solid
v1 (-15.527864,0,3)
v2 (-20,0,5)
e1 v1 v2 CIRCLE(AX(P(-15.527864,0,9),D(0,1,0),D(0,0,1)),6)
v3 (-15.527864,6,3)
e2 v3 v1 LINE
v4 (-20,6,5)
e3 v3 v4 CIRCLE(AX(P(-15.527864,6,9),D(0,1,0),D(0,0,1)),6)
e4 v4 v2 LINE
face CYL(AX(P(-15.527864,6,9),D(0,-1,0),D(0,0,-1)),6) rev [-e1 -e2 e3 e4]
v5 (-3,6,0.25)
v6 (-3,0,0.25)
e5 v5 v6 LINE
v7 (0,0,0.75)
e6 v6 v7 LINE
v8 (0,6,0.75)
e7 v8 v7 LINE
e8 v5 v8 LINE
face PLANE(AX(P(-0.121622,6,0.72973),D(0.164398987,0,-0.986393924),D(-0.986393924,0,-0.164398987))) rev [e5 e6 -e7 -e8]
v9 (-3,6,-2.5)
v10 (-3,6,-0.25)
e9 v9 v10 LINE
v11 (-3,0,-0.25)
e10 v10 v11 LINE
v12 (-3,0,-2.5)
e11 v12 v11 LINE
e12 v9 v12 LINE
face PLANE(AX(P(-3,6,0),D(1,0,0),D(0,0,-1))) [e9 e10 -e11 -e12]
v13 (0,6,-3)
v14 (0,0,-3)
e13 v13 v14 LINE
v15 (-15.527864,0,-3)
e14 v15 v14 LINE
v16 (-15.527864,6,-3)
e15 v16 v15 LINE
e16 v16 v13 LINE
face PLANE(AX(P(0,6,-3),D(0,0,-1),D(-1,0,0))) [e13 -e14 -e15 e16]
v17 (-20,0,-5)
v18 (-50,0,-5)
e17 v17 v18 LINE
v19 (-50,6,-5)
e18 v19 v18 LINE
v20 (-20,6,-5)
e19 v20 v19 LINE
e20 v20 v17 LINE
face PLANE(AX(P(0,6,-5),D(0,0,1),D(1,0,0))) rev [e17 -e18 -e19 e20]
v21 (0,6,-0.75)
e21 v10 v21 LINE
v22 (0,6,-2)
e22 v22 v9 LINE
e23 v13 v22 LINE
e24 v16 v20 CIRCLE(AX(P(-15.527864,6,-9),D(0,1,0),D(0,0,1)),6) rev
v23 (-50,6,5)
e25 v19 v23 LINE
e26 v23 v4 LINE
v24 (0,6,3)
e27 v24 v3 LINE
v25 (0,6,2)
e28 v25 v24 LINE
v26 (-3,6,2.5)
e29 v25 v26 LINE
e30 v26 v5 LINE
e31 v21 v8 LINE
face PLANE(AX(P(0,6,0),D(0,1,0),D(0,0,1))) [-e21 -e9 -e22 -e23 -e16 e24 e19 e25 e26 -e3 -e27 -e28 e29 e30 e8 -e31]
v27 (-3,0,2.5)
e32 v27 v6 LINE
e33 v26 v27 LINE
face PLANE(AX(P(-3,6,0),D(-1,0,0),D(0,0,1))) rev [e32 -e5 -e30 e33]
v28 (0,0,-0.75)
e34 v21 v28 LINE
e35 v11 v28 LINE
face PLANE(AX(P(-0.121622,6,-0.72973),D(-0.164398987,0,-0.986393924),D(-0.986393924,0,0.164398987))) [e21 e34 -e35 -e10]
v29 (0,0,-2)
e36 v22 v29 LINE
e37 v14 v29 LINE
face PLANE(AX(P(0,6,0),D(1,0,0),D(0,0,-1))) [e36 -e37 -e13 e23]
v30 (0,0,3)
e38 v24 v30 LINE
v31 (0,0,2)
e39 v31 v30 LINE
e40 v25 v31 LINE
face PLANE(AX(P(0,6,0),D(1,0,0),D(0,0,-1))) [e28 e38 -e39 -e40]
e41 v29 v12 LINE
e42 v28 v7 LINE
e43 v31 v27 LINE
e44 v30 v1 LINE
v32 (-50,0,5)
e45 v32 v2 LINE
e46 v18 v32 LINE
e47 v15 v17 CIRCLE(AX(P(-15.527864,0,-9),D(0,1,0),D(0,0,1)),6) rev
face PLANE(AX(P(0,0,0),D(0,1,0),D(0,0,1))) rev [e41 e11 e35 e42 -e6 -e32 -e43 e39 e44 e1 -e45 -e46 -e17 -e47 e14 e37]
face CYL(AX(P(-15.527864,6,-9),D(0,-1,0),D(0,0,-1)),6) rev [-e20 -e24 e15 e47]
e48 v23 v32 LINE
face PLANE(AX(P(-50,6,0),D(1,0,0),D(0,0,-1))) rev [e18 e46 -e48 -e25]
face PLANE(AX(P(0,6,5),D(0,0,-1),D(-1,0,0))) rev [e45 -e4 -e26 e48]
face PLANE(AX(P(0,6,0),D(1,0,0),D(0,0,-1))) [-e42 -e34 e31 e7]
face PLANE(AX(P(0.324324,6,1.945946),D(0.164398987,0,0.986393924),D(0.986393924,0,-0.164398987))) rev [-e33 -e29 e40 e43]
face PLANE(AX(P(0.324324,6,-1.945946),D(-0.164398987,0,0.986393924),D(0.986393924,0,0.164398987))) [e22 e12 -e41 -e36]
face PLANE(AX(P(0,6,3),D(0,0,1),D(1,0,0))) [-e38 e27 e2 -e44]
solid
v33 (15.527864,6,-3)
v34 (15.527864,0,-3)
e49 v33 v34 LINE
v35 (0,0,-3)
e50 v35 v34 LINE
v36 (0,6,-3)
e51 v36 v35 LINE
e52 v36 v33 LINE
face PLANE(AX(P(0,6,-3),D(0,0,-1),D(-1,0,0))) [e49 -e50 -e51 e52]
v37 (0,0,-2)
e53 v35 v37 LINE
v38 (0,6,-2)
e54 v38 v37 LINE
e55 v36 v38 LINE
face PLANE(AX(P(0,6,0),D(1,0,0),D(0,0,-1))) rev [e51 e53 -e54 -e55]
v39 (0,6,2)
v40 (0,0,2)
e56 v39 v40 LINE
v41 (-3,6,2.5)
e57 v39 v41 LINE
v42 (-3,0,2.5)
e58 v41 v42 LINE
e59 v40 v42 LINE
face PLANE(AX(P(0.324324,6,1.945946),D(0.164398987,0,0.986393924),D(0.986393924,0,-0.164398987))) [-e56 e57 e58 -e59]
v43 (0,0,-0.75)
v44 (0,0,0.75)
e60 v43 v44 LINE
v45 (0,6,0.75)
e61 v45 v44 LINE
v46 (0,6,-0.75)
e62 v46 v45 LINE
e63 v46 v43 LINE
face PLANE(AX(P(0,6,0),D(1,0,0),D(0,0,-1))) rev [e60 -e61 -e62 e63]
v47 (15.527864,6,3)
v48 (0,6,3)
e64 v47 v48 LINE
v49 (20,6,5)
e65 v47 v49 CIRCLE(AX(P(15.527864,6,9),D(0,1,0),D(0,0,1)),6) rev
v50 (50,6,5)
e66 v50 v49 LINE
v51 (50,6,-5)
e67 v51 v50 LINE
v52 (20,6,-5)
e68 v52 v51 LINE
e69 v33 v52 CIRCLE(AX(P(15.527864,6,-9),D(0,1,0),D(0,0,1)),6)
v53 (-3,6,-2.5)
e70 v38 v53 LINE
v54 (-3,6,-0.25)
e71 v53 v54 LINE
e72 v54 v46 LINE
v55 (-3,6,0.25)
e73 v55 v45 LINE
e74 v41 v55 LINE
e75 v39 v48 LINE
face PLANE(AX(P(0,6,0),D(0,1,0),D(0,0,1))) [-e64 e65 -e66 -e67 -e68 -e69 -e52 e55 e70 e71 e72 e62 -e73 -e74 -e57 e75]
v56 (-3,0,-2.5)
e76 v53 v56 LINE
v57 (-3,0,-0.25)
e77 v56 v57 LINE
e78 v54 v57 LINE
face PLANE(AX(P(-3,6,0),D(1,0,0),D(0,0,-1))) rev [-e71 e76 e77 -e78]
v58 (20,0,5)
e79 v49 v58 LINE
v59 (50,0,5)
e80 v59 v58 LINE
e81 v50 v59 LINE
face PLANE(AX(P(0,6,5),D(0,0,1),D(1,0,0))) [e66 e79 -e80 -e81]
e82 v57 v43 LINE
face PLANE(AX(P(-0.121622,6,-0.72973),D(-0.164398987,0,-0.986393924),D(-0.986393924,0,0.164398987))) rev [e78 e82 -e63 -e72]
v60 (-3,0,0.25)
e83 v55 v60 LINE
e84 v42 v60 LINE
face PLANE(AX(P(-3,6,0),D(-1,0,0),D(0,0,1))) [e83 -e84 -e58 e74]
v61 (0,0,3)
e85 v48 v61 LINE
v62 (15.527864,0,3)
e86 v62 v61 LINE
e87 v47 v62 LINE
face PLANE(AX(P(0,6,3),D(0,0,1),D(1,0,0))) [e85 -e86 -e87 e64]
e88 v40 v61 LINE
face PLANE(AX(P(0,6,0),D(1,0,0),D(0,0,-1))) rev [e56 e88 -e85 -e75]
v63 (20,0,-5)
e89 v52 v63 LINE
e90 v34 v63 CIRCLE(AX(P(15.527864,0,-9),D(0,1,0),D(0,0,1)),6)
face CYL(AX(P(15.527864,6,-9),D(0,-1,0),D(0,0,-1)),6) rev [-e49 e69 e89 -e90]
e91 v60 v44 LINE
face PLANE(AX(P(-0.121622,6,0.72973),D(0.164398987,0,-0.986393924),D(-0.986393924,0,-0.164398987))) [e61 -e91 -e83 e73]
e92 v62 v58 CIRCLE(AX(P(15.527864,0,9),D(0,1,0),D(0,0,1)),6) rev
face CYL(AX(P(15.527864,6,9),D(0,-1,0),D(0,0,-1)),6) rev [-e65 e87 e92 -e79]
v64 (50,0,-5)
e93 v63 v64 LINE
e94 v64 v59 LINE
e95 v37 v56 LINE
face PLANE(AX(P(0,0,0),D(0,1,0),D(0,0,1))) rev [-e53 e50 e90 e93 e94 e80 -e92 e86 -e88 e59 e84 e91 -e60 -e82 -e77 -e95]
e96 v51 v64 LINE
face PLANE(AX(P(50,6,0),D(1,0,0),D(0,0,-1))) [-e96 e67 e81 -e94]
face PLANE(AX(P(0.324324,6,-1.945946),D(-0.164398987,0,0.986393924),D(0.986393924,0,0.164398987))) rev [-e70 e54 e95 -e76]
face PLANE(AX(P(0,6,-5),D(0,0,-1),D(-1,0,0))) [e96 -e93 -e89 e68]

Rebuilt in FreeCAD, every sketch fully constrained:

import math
import FreeCAD as App
import Part
import Sketcher

V = App.Vector
Q = App.Units.Quantity

doc = App.newDocument("Part")
body = doc.addObject("PartDesign::Body", "Body")

sketch1 = body.newObject("Sketcher::SketchObject", "Sketch")
sketch1.AttachmentSupport = (doc.getObject("XZ_Plane"), [""])
sketch1.MapMode = "FlatFace"
sketch1.addGeometry([
    Part.LineSegment(V(-15.5, 3, 0), V(0, 3, 0)),
    Part.LineSegment(V(0, 3, 0), V(0, 2, 0)),
    Part.LineSegment(V(0, 2, 0), V(-3, 2.5, 0)),
    Part.LineSegment(V(-3, 2.5, 0), V(-3, 0.2, 0)),
    Part.LineSegment(V(-3, 0.2, 0), V(0, 0.8, 0)),
    Part.LineSegment(V(0, 0.8, 0), V(0, -0.8, 0)),
    Part.LineSegment(V(0, -0.8, 0), V(-3, -0.2, 0)),
    Part.LineSegment(V(-3, -0.2, 0), V(-3, -2.5, 0)),
    Part.LineSegment(V(-3, -2.5, 0), V(0, -2, 0)),
    Part.LineSegment(V(0, -2, 0), V(0, -3, 0)),
    Part.LineSegment(V(0, -3, 0), V(-15.5, -3, 0)),
    Part.ArcOfCircle(Part.Circle(V(-15.5, -9, 0), V(0, 0, 1), 6), math.radians(90), math.radians(138)),
    Part.LineSegment(V(-20, -5, 0), V(-50, -5, 0)),
    Part.LineSegment(V(-50, -5, 0), V(-50, 5, 0)),
    Part.LineSegment(V(-50, 5, 0), V(-20, 5, 0)),
    Part.ArcOfCircle(Part.Circle(V(-15.5, 9, 0), V(0, 0, 1), 6), math.radians(-138), math.radians(-90)),
], False)
sketch1.addConstraint([
    Sketcher.Constraint("Coincident", 0, 2, 1, 1),
    Sketcher.Constraint("Coincident", 1, 2, 2, 1),
    Sketcher.Constraint("Coincident", 2, 2, 3, 1),
    Sketcher.Constraint("Coincident", 3, 2, 4, 1),
    Sketcher.Constraint("Coincident", 4, 2, 5, 1),
    Sketcher.Constraint("Coincident", 5, 2, 6, 1),
    Sketcher.Constraint("Coincident", 6, 2, 7, 1),
    Sketcher.Constraint("Coincident", 7, 2, 8, 1),
    Sketcher.Constraint("Coincident", 8, 2, 9, 1),
    Sketcher.Constraint("Coincident", 9, 2, 10, 1),
    Sketcher.Constraint("Tangent", 10, 2, 11, 1),
    Sketcher.Constraint("Coincident", 11, 2, 12, 1),
    Sketcher.Constraint("Coincident", 12, 2, 13, 1),
    Sketcher.Constraint("Coincident", 13, 2, 14, 1),
    Sketcher.Constraint("Coincident", 14, 2, 15, 1),
    Sketcher.Constraint("Tangent", 15, 2, 0, 1),
    Sketcher.Constraint("Horizontal", 0),
    Sketcher.Constraint("Vertical", 1),
    Sketcher.Constraint("Vertical", 3),
    Sketcher.Constraint("Vertical", 5),
    Sketcher.Constraint("Vertical", 7),
    Sketcher.Constraint("Vertical", 9),
    Sketcher.Constraint("Horizontal", 10),
    Sketcher.Constraint("Horizontal", 12),
    Sketcher.Constraint("Vertical", 13),
    Sketcher.Constraint("Horizontal", 14),
    Sketcher.Constraint("Equal", 11, 15),
    Sketcher.Constraint("Symmetric", 4, 2, 5, 2, -1, 1),
    Sketcher.Constraint("Symmetric", 1, 2, 8, 2, -1, 1),
    Sketcher.Constraint("Symmetric", 11, 3, 15, 3, -1),
    Sketcher.Constraint("Symmetric", 3, 2, 6, 2, -1),
    Sketcher.Constraint("PointOnObject", 0, 2, -2),
    Sketcher.Constraint("Parallel", 2, 6),
    Sketcher.Constraint("Parallel", 4, 8),
    Sketcher.Constraint("Vertical", 11, 2, 14, 2),
    Sketcher.Constraint("Radius", 11, Q("6 mm")),
    Sketcher.Constraint("DistanceX", 12, 2, 12, 1, Q("30 mm")),
    Sketcher.Constraint("DistanceY", 1, 2, 1, 1, Q("1 mm")),
    Sketcher.Constraint("DistanceY", 13, 1, 13, 2, Q("10 mm")),
    Sketcher.Constraint("DistanceY", 5, 2, 5, 1, Q("1.5 mm")),
    Sketcher.Constraint("DistanceY", 11, 3, -1, 1, Q("9 mm")),
    Sketcher.Constraint("DistanceX", 2, 2, -1, 1, Q("3 mm")),
    Sketcher.Constraint("DistanceX", 11, 2, -1, 1, Q("20 mm")),
    Sketcher.Constraint("DistanceY", 5, 2, 3, 2, Q("1 mm")),
])
pad1 = body.newObject("PartDesign::Pad", "Pad")
pad1.Profile = sketch1
pad1.Length = 6
pad1.Reversed = True
body2 = doc.addObject("PartDesign::Body", "Body001")

sketch2 = body2.newObject("Sketcher::SketchObject", "Sketch001")
sketch2.AttachmentSupport = (doc.getObject("XZ_Plane001"), [""])
sketch2.MapMode = "FlatFace"
sketch2.addGeometry([
    Part.LineSegment(V(0, 3, 0), V(15.5, 3, 0)),
    Part.ArcOfCircle(Part.Circle(V(15.5, 9, 0), V(0, 0, 1), 6), math.radians(-90), math.radians(-42)),
    Part.LineSegment(V(20, 5, 0), V(50, 5, 0)),
    Part.LineSegment(V(50, 5, 0), V(50, -5, 0)),
    Part.LineSegment(V(50, -5, 0), V(20, -5, 0)),
    Part.ArcOfCircle(Part.Circle(V(15.5, -9, 0), V(0, 0, 1), 6), math.radians(42), math.radians(90)),
    Part.LineSegment(V(15.5, -3, 0), V(0, -3, 0)),
    Part.LineSegment(V(0, -3, 0), V(0, -2, 0)),
    Part.LineSegment(V(0, -2, 0), V(-3, -2.5, 0)),
    Part.LineSegment(V(-3, -2.5, 0), V(-3, -0.2, 0)),
    Part.LineSegment(V(-3, -0.2, 0), V(0, -0.8, 0)),
    Part.LineSegment(V(0, -0.8, 0), V(0, 0.8, 0)),
    Part.LineSegment(V(0, 0.8, 0), V(-3, 0.2, 0)),
    Part.LineSegment(V(-3, 0.2, 0), V(-3, 2.5, 0)),
    Part.LineSegment(V(-3, 2.5, 0), V(0, 2, 0)),
    Part.LineSegment(V(0, 2, 0), V(0, 3, 0)),
], False)
sketch2.addConstraint([
    Sketcher.Constraint("Tangent", 0, 2, 1, 1),
    Sketcher.Constraint("Coincident", 1, 2, 2, 1),
    Sketcher.Constraint("Coincident", 2, 2, 3, 1),
    Sketcher.Constraint("Coincident", 3, 2, 4, 1),
    Sketcher.Constraint("Coincident", 4, 2, 5, 1),
    Sketcher.Constraint("Tangent", 5, 2, 6, 1),
    Sketcher.Constraint("Coincident", 6, 2, 7, 1),
    Sketcher.Constraint("Coincident", 7, 2, 8, 1),
    Sketcher.Constraint("Coincident", 8, 2, 9, 1),
    Sketcher.Constraint("Coincident", 9, 2, 10, 1),
    Sketcher.Constraint("Coincident", 10, 2, 11, 1),
    Sketcher.Constraint("Coincident", 11, 2, 12, 1),
    Sketcher.Constraint("Coincident", 12, 2, 13, 1),
    Sketcher.Constraint("Coincident", 13, 2, 14, 1),
    Sketcher.Constraint("Coincident", 14, 2, 15, 1),
    Sketcher.Constraint("Coincident", 15, 2, 0, 1),
    Sketcher.Constraint("Horizontal", 0),
    Sketcher.Constraint("Horizontal", 2),
    Sketcher.Constraint("Vertical", 3),
    Sketcher.Constraint("Horizontal", 4),
    Sketcher.Constraint("Horizontal", 6),
    Sketcher.Constraint("Vertical", 7),
    Sketcher.Constraint("Vertical", 9),
    Sketcher.Constraint("Vertical", 11),
    Sketcher.Constraint("Vertical", 13),
    Sketcher.Constraint("Vertical", 15),
    Sketcher.Constraint("Equal", 1, 5),
    Sketcher.Constraint("Symmetric", 10, 2, 11, 2, -1, 1),
    Sketcher.Constraint("Symmetric", 7, 2, 14, 2, -1, 1),
    Sketcher.Constraint("Symmetric", 1, 3, 5, 3, -1),
    Sketcher.Constraint("Symmetric", 9, 2, 12, 2, -1),
    Sketcher.Constraint("PointOnObject", 6, 2, -2),
    Sketcher.Constraint("Parallel", 8, 12),
    Sketcher.Constraint("Parallel", 10, 14),
    Sketcher.Constraint("Vertical", 1, 2, 4, 2),
    Sketcher.Constraint("Radius", 1, Q("6 mm")),
    Sketcher.Constraint("DistanceX", 2, 1, 2, 2, Q("30 mm")),
    Sketcher.Constraint("DistanceY", 3, 2, 3, 1, Q("10 mm")),
    Sketcher.Constraint("DistanceY", 7, 1, 7, 2, Q("1 mm")),
    Sketcher.Constraint("DistanceY", 11, 1, 11, 2, Q("1.5 mm")),
    Sketcher.Constraint("DistanceY", -1, 1, 1, 3, Q("9 mm")),
    Sketcher.Constraint("DistanceX", -1, 1, 1, 2, Q("20 mm")),
    Sketcher.Constraint("DistanceX", 8, 2, -1, 1, Q("3 mm")),
    Sketcher.Constraint("DistanceY", 9, 2, 11, 2, Q("1 mm")),
])
pad2 = body2.newObject("PartDesign::Pad", "Pad001")
pad2.Profile = sketch2
pad2.Length = 6
pad2.Reversed = True

doc.recompute()
